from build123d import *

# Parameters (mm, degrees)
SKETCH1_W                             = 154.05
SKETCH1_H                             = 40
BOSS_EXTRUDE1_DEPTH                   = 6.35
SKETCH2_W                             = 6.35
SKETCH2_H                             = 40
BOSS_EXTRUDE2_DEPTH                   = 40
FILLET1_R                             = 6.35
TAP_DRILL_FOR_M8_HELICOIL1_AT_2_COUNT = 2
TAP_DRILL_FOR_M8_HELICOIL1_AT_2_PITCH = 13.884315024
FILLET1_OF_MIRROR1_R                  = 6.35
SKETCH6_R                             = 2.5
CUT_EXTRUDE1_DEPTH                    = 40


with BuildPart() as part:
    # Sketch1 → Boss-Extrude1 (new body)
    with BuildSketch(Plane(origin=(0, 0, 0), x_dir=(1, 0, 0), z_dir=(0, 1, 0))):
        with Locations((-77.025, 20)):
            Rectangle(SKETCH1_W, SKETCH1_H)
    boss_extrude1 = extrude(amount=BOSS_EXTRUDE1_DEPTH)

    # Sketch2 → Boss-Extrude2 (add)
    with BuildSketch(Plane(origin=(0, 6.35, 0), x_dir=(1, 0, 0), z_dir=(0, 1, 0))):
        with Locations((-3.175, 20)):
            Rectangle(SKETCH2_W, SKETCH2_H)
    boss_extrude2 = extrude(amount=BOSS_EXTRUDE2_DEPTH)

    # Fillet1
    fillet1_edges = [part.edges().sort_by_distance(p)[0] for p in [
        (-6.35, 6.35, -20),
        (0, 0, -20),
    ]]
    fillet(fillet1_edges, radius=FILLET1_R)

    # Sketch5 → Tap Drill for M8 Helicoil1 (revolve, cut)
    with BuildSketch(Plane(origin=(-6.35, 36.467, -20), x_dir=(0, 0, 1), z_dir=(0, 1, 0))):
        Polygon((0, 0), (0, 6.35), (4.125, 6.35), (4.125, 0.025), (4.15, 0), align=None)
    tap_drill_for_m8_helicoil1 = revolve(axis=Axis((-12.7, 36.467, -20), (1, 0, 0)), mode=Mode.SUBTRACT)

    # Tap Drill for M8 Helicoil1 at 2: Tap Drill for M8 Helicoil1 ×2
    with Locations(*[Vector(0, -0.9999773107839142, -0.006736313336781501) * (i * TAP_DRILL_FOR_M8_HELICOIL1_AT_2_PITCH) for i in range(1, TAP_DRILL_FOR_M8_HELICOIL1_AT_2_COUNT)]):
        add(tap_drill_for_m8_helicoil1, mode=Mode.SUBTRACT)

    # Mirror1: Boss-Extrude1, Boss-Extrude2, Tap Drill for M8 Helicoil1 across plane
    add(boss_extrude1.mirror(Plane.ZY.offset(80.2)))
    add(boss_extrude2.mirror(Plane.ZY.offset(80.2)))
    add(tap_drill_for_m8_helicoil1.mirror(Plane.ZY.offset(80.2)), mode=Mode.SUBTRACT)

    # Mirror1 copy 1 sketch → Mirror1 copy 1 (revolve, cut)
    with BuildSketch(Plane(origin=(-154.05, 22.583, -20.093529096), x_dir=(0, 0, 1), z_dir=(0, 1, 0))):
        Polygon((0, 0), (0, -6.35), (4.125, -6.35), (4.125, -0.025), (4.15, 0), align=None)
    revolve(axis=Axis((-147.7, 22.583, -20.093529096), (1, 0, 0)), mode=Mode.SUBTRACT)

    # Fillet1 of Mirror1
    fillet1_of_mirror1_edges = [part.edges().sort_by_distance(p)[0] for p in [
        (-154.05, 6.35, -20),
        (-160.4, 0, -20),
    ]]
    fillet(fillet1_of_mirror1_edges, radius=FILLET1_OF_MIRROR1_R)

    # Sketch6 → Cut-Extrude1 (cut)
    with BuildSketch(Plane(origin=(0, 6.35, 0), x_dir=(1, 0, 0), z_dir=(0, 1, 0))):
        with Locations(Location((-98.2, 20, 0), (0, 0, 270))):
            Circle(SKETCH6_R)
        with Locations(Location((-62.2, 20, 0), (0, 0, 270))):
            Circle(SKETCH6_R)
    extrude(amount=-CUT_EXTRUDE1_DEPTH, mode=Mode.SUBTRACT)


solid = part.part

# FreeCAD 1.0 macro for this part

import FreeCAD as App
import Part
import Sketcher

V = App.Vector
Q = App.Units.Quantity


def edges_at(feature, points):
    """Names of the edges that pass closest to the given points."""
    edges = feature.Shape.Edges
    near = lambda p: min(range(len(edges)), key=lambda i: edges[i].distToShape(Part.Vertex(*p))[0])
    return sorted({f"Edge{near(p) + 1}" for p in points})


def add_polygon(sketch, points):
    """Adds a closed chain of lines whose ends are joined by coincident constraints."""
    first, n = sketch.GeometryCount, len(points)
    for a, b in zip(points, points[1:] + points[:1]):
        sketch.addGeometry(Part.LineSegment(App.Vector(*a, 0), App.Vector(*b, 0)), False)
    for i in range(n):
        sketch.addConstraint(Sketcher.Constraint("Coincident", first + i, 2, first + (i + 1) % n, 1))

doc = App.newDocument("Part")
body = doc.addObject("PartDesign::Body", "Body")

sketch1 = doc.addObject("Sketcher::SketchObject", "Sketch")
body.addObject(sketch1)
sketch1.AttachmentSupport = (doc.XZ_Plane, [""])
sketch1.MapMode = "FlatFace"
add_polygon(sketch1, [(-154, -40), (-154, 0), (0, 0), (0, -40)])
sketch1.addConstraint(Sketcher.Constraint("Vertical", 0))
sketch1.addConstraint(Sketcher.Constraint("Horizontal", 1))
sketch1.addConstraint(Sketcher.Constraint("Vertical", 2))
sketch1.addConstraint(Sketcher.Constraint("Horizontal", 3))
sketch1.addConstraint(Sketcher.Constraint("Coincident", 1, 2, -1, 1))
sketch1.addConstraint(Sketcher.Constraint("DistanceY", 0, 1, 0, 2, 40.0))
sketch1.addConstraint(Sketcher.Constraint("DistanceX", 1, 1, 1, 2, 154.05))
pad1 = doc.addObject("PartDesign::Pad", "Pad")
body.addObject(pad1)
pad1.Profile = sketch1
pad1.Length = 6.35
pad1.Reversed = True

sketch2 = doc.addObject("Sketcher::SketchObject", "Sketch001")
body.addObject(sketch2)
sketch2.AttachmentSupport = (doc.XZ_Plane, [""])
sketch2.MapMode = "FlatFace"
sketch2.AttachmentOffset = App.Placement(V(0, 0, -6.35), App.Rotation())
add_polygon(sketch2, [(-6, -40), (-6, 0), (0, 0), (0, -40)])
sketch2.addConstraint(Sketcher.Constraint("Vertical", 0))
sketch2.addConstraint(Sketcher.Constraint("Horizontal", 1))
sketch2.addConstraint(Sketcher.Constraint("Vertical", 2))
sketch2.addConstraint(Sketcher.Constraint("Horizontal", 3))
sketch2.addConstraint(Sketcher.Constraint("Coincident", 1, 2, -1, 1))
sketch2.addConstraint(Sketcher.Constraint("DistanceY", 0, 1, 0, 2, 40.0))
sketch2.addConstraint(Sketcher.Constraint("DistanceX", 1, 1, 1, 2, 6.35))
pad2 = doc.addObject("PartDesign::Pad", "Pad001")
body.addObject(pad2)
pad2.Profile = sketch2
pad2.Length = 40
pad2.Reversed = True
doc.recompute()

fillet = doc.addObject("PartDesign::Fillet", "Fillet")
body.addObject(fillet)
fillet.Base = (pad2, edges_at(pad2, [(-6.35, 6.35, -20), (0, 0, -20)]))
fillet.Radius = 6.35

sketch3 = doc.addObject("Sketcher::SketchObject", "Sketch002")
body.addObject(sketch3)
sketch3.AttachmentSupport = (doc.XZ_Plane, [""])
sketch3.MapMode = "FlatFace"
sketch3.AttachmentOffset = App.Placement(V(0, 0, -36.467), App.Rotation())
add_polygon(sketch3, [(0, -20), (-6.35, -20), (-6.35, -15.85), (-6.325, -15.875), (0, -15.875)])
sketch3.addGeometry(Part.LineSegment(V(-6.35, -20, 0), V(0, -20, 0)), True)
sketch3.addConstraint(Sketcher.Constraint("Horizontal", 0))
sketch3.addConstraint(Sketcher.Constraint("Vertical", 1))
sketch3.addConstraint(Sketcher.Constraint("Horizontal", 3))
sketch3.addConstraint(Sketcher.Constraint("Vertical", 4))
sketch3.addConstraint(Sketcher.Constraint("Horizontal", 5))
sketch3.addConstraint(Sketcher.Constraint("Coincident", 5, 1, 0, 2))
sketch3.addConstraint(Sketcher.Constraint("PointOnObject", 3, 2, -2))
sketch3.addConstraint(Sketcher.Constraint("PointOnObject", 5, 2, -2))
sketch3.addConstraint(Sketcher.Constraint("Angle", 2, Q("-45 deg")))
sketch3.addConstraint(Sketcher.Constraint("DistanceY", 0, 2, -1, 1, 20.0))
sketch3.addConstraint(Sketcher.Constraint("DistanceX", 0, 2, 0, 1, 6.35))
sketch3.addConstraint(Sketcher.Constraint("DistanceY", 1, 1, 1, 2, 4.15))
sketch3.addConstraint(Sketcher.Constraint("DistanceX", 3, 1, 3, 2, 6.325))
groove = doc.addObject("PartDesign::Groove", "Groove")
body.addObject(groove)
groove.Profile = sketch3
groove.ReferenceAxis = (sketch3, ["Axis0"])
groove.Angle = 360
doc.recompute()

datumline = doc.addObject("PartDesign::Line", "DatumLine")
body.addObject(datumline)
datumline.Placement = App.Placement(V(0, 0, 0), App.Rotation(V(0, 0, 1), V(0, -0.999977311, -0.006736313)))
linearpattern = doc.addObject("PartDesign::LinearPattern", "LinearPattern")
body.addObject(linearpattern)
linearpattern.Originals = [groove]
linearpattern.Direction = (datumline, [""])
linearpattern.Mode = "offset"
linearpattern.Offset = 13.884315
linearpattern.Occurrences = 2
body.Tip = linearpattern
doc.recompute()

datumplane = doc.addObject("PartDesign::Plane", "DatumPlane")
body.addObject(datumplane)
datumplane.AttachmentSupport = (doc.YZ_Plane, [""])
datumplane.MapMode = "FlatFace"
datumplane.AttachmentOffset = App.Placement(V(0, 0, -80.2), App.Rotation())
mirrored = doc.addObject("PartDesign::Mirrored", "Mirrored")
body.addObject(mirrored)
mirrored.Originals = [pad1, pad2, groove]
mirrored.MirrorPlane = (datumplane, [""])
body.Tip = mirrored

sketch4 = doc.addObject("Sketcher::SketchObject", "Sketch003")
body.addObject(sketch4)
sketch4.AttachmentSupport = (doc.XZ_Plane, [""])
sketch4.MapMode = "FlatFace"
sketch4.AttachmentOffset = App.Placement(V(0, 0, -22.583), App.Rotation())
add_polygon(sketch4, [(-154.05, -20.094), (-160.4, -20.094), (-160.4, -15.969), (-154.075, -15.969), (-154.05, -15.944)])
sketch4.addGeometry(Part.LineSegment(V(-160.4, -20.094, 0), V(-154.05, -20.094, 0)), True)
sketch4.addConstraint(Sketcher.Constraint("Horizontal", 0))
sketch4.addConstraint(Sketcher.Constraint("Vertical", 1))
sketch4.addConstraint(Sketcher.Constraint("Horizontal", 2))
sketch4.addConstraint(Sketcher.Constraint("Vertical", 4))
sketch4.addConstraint(Sketcher.Constraint("Horizontal", 5))
sketch4.addConstraint(Sketcher.Constraint("Coincident", 5, 1, 0, 2))
sketch4.addConstraint(Sketcher.Constraint("Vertical", 3, 2, 5, 2))
sketch4.addConstraint(Sketcher.Constraint("Angle", 3, Q("45 deg")))
sketch4.addConstraint(Sketcher.Constraint("DistanceX", 0, 2, 0, 1, 6.35))
sketch4.addConstraint(Sketcher.Constraint("DistanceY", 4, 2, 4, 1, 4.15))
sketch4.addConstraint(Sketcher.Constraint("DistanceX", 0, 2, -1, 1, 160.4))
sketch4.addConstraint(Sketcher.Constraint("DistanceX", 2, 1, 2, 2, 6.325))
sketch4.addConstraint(Sketcher.Constraint("DistanceY", 0, 2, -1, 1, 20.093529))
groove2 = doc.addObject("PartDesign::Groove", "Groove001")
body.addObject(groove2)
groove2.Profile = sketch4
groove2.ReferenceAxis = (sketch4, ["Axis0"])
groove2.Angle = 360
doc.recompute()

fillet2 = doc.addObject("PartDesign::Fillet", "Fillet001")
body.addObject(fillet2)
fillet2.Base = (groove2, edges_at(groove2, [(-154.05, 6.35, -20), (-160.4, 0, -20)]))
fillet2.Radius = 6.35

sketch5 = doc.addObject("Sketcher::SketchObject", "Sketch004")
body.addObject(sketch5)
sketch5.AttachmentSupport = (doc.XZ_Plane, [""])
sketch5.MapMode = "FlatFace"
sketch5.AttachmentOffset = App.Placement(V(0, 0, -6.35), App.Rotation())
sketch5.addGeometry(Part.Circle(V(-98.2, -20, 0), V(0, 0, 1), 2.5), False)
sketch5.addGeometry(Part.Circle(V(-62.2, -20, 0), V(0, 0, 1), 2.5), False)
sketch5.addConstraint(Sketcher.Constraint("Equal", 0, 1))
sketch5.addConstraint(Sketcher.Constraint("Horizontal", 0, 3, 1, 3))
sketch5.addConstraint(Sketcher.Constraint("Diameter", 0, 5.0))
sketch5.addConstraint(Sketcher.Constraint("DistanceY", 0, 3, -1, 1, 20.0))
sketch5.addConstraint(Sketcher.Constraint("DistanceX", 0, 3, 1, 3, 36.0))
sketch5.addConstraint(Sketcher.Constraint("DistanceX", 0, 3, -1, 1, 98.2))
pocket1 = doc.addObject("PartDesign::Pocket", "Pocket")
body.addObject(pocket1)
pocket1.Profile = sketch5
pocket1.Length = 40
pocket1.Reversed = True

doc.recompute()
